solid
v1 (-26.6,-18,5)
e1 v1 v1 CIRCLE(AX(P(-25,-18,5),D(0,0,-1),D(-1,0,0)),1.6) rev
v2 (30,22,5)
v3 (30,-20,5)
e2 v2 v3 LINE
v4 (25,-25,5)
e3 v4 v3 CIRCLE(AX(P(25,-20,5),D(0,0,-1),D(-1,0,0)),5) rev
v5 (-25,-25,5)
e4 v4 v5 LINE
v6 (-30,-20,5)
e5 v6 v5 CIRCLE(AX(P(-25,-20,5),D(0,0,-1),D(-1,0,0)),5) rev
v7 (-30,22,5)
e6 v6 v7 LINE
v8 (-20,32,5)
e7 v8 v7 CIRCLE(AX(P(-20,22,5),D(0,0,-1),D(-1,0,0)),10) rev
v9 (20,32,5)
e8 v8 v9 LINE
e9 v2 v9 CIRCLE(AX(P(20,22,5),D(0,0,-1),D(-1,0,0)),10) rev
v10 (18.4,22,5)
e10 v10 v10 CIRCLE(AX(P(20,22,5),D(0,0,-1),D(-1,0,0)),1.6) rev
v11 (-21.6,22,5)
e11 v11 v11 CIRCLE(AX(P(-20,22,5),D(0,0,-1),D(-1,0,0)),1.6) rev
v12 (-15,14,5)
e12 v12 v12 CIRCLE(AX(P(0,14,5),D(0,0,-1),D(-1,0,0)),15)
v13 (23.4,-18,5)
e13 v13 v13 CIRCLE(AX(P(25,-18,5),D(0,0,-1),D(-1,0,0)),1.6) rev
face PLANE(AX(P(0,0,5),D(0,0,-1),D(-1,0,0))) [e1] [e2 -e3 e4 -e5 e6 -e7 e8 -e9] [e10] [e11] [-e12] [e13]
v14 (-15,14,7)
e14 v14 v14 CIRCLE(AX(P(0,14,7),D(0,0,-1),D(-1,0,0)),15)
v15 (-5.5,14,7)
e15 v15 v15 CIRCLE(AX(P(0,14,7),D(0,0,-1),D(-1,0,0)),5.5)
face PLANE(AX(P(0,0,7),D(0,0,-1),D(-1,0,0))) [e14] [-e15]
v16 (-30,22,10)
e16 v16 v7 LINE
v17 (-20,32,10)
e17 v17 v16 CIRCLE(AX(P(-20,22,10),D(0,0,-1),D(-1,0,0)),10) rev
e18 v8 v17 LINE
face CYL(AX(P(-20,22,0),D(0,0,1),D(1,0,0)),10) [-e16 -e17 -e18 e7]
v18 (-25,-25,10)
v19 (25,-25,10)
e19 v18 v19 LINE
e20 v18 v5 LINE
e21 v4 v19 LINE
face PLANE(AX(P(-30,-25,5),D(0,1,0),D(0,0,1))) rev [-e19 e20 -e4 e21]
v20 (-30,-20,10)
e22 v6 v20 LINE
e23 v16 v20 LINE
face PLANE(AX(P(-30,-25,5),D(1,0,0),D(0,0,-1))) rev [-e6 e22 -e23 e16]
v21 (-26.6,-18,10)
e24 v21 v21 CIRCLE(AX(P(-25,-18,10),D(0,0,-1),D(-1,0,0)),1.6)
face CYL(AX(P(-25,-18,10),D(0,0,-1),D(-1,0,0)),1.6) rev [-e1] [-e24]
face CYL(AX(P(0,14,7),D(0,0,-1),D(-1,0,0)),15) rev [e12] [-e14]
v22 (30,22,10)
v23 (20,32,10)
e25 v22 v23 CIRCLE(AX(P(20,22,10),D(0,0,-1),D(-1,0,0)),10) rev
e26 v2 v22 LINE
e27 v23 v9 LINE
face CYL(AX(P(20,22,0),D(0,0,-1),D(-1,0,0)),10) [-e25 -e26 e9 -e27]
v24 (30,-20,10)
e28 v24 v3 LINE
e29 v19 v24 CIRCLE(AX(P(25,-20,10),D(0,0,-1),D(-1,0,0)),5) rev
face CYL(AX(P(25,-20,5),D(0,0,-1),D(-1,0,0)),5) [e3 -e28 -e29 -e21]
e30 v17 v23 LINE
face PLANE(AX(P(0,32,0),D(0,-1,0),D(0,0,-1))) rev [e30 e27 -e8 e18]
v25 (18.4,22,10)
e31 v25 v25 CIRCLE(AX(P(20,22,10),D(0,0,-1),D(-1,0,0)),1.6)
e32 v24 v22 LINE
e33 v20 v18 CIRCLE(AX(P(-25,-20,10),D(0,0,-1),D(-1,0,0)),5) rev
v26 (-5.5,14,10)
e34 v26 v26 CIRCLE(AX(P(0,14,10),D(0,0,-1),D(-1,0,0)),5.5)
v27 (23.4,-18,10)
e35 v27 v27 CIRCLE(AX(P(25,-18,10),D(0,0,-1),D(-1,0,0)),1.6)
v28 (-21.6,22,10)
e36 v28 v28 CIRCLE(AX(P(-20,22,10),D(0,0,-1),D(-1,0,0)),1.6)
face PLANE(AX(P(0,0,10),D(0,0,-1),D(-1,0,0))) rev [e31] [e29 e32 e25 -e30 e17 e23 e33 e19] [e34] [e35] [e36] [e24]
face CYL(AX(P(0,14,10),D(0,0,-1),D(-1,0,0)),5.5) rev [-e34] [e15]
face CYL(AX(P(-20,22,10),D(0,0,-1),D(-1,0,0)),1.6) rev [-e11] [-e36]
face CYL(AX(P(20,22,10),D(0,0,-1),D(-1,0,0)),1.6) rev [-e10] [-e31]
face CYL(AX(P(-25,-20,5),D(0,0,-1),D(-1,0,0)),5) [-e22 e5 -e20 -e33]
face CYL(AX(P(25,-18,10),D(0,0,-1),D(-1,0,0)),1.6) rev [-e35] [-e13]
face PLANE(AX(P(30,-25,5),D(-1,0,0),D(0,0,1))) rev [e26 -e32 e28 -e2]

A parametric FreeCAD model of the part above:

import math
import FreeCAD as App
import Part
import Sketcher
from FreeCAD import Vector


def edges_at(feature, points):
    """Names of the edges that pass closest to the given points."""
    edges = feature.Shape.Edges
    near = lambda p: min(range(len(edges)), key=lambda i: edges[i].distToShape(Part.Vertex(*p))[0])
    return sorted({f"Edge{near(p) + 1}" for p in points})

doc = App.newDocument("Part")
params = doc.addObject("Spreadsheet::Sheet", "Params")
for row, (alias, value) in enumerate([
    ("sketch1_diameter", "30 mm"),
    ("sketch1_width", "60 mm"),
    ("sketch1_height", "50 mm"),
    ("pad1_length", "5 mm"),
    ("sketch2_diameter", "11 mm"),
    ("sketch2_width", "60 mm"),
    ("sketch2_height", "50 mm"),
    ("pad2_length", "5 mm"),
    ("sketch3_diameter", "3.2 mm"),
    ("pocket1_length", "10 mm"),
    ("sketch4_width", "60 mm"),
    ("sketch4_height", "10 mm"),
    ("pad3_length", "7 mm"),
    ("fillet_radius", "10 mm"),
    ("fillet2_radius", "10 mm"),
    ("fillet3_radius", "5 mm"),
    ("fillet4_radius", "5 mm"),
    ("pocket2_length", "5 mm"),
    ("sketch6_diameter", "30 mm"),
    ("pocket3_length", "2 mm"),
    ("sketch7_radius", "15 mm"),
    ("sketch7_height", "14 mm"),
    ("pocket4_length", "2 mm"),
    ("sketch8_diameter", "11 mm"),
    ("sketch9_diameter", "11 mm"),
    ("pad4_length", "3 mm"),
    ("sketch10_radius", "15 mm"),
    ("sketch10_height", "14 mm"),
    ("pad5_length", "2 mm"),
], start=1):
    params.set(f"A{row}", alias)
    params.set(f"B{row}", "=" + value)
    params.setAlias(f"B{row}", alias)

body = doc.addObject("PartDesign::Body", "Body")

sketch1 = body.newObject("Sketcher::SketchObject", "Sketch")
sketch1.AttachmentSupport = (doc.getObject("XY_Plane"), [""])
sketch1.MapMode = "FlatFace"
sketch1.addGeometry(Part.LineSegment(Vector(-30, 25, 0), Vector(-30, -25, 0)), False)
sketch1.addGeometry(Part.LineSegment(Vector(-30, -25, 0), Vector(30, -25, 0)), False)
sketch1.addGeometry(Part.LineSegment(Vector(30, -25, 0), Vector(30, 25, 0)), False)
sketch1.addGeometry(Part.LineSegment(Vector(30, 25, 0), Vector(-30, 25, 0)), False)
sketch1.addGeometry(Part.Circle(Vector(0, 0, 0), Vector(0, 0, 1), 15), False)
sketch1.addConstraint(Sketcher.Constraint("Coincident", 0, 2, 1, 1))
sketch1.addConstraint(Sketcher.Constraint("Coincident", 1, 2, 2, 1))
sketch1.addConstraint(Sketcher.Constraint("Coincident", 2, 2, 3, 1))
sketch1.addConstraint(Sketcher.Constraint("Coincident", 3, 2, 0, 1))
sketch1.addConstraint(Sketcher.Constraint("Vertical", 0))
sketch1.addConstraint(Sketcher.Constraint("Horizontal", 1))
sketch1.addConstraint(Sketcher.Constraint("Vertical", 2))
sketch1.addConstraint(Sketcher.Constraint("Horizontal", 3))
sketch1.addConstraint(Sketcher.Constraint("Coincident", 4, 3, -1, 1))
sketch1.addConstraint(Sketcher.Constraint("Symmetric", 0, 2, 2, 2, -1, 1))
sketch1.addConstraint(Sketcher.Constraint("Diameter", 4, 30.0))
sketch1.addConstraint(Sketcher.Constraint("DistanceX", 1, 1, 1, 2, 60.0))
sketch1.addConstraint(Sketcher.Constraint("DistanceY", 0, 2, 0, 1, 50.0))
sketch1.setExpression("Constraints[10]", "Params.sketch1_diameter")
sketch1.setExpression("Constraints[11]", "Params.sketch1_width")
sketch1.setExpression("Constraints[12]", "Params.sketch1_height")
pad1 = body.newObject("PartDesign::Pad", "Pad")
pad1.Profile = sketch1
pad1.setExpression("Length", "Params.pad1_length")

sketch2 = body.newObject("Sketcher::SketchObject", "Sketch001")
sketch2.AttachmentSupport = (doc.getObject("XY_Plane"), [""])
sketch2.MapMode = "FlatFace"
sketch2.AttachmentOffset = App.Placement(Vector(0, 0, 5), App.Rotation())
sketch2.addGeometry(Part.LineSegment(Vector(-30, 25, 0), Vector(-30, -25, 0)), False)
sketch2.addGeometry(Part.LineSegment(Vector(-30, -25, 0), Vector(30, -25, 0)), False)
sketch2.addGeometry(Part.LineSegment(Vector(30, -25, 0), Vector(30, 25, 0)), False)
sketch2.addGeometry(Part.LineSegment(Vector(30, 25, 0), Vector(-30, 25, 0)), False)
sketch2.addGeometry(Part.Circle(Vector(0, 0, 0), Vector(0, 0, 1), 6), False)
sketch2.addConstraint(Sketcher.Constraint("Coincident", 0, 2, 1, 1))
sketch2.addConstraint(Sketcher.Constraint("Coincident", 1, 2, 2, 1))
sketch2.addConstraint(Sketcher.Constraint("Coincident", 2, 2, 3, 1))
sketch2.addConstraint(Sketcher.Constraint("Coincident", 3, 2, 0, 1))
sketch2.addConstraint(Sketcher.Constraint("Vertical", 0))
sketch2.addConstraint(Sketcher.Constraint("Horizontal", 1))
sketch2.addConstraint(Sketcher.Constraint("Vertical", 2))
sketch2.addConstraint(Sketcher.Constraint("Horizontal", 3))
sketch2.addConstraint(Sketcher.Constraint("Coincident", 4, 3, -1, 1))
sketch2.addConstraint(Sketcher.Constraint("Symmetric", 0, 2, 2, 2, -1, 1))
sketch2.addConstraint(Sketcher.Constraint("Diameter", 4, 11.0))
sketch2.addConstraint(Sketcher.Constraint("DistanceX", 1, 1, 1, 2, 60.0))
sketch2.addConstraint(Sketcher.Constraint("DistanceY", 0, 2, 0, 1, 50.0))
sketch2.setExpression("Constraints[10]", "Params.sketch2_diameter")
sketch2.setExpression("Constraints[11]", "Params.sketch2_width")
sketch2.setExpression("Constraints[12]", "Params.sketch2_height")
pad2 = body.newObject("PartDesign::Pad", "Pad001")
pad2.Profile = sketch2
pad2.setExpression("Length", "Params.pad2_length")

sketch3 = body.newObject("Sketcher::SketchObject", "Sketch002")
sketch3.AttachmentSupport = (doc.getObject("XY_Plane"), [""])
sketch3.MapMode = "FlatFace"
sketch3.addGeometry(Part.Circle(Vector(20, 22, 0), Vector(0, 0, 1), 1.6), False)
sketch3.addGeometry(Part.Circle(Vector(25, -18, 0), Vector(0, 0, 1), 1.6), False)
sketch3.addGeometry(Part.Circle(Vector(-20, 22, 0), Vector(0, 0, 1), 1.6), False)
sketch3.addGeometry(Part.Circle(Vector(-25, -18, 0), Vector(0, 0, 1), 1.6), False)
sketch3.addConstraint(Sketcher.Constraint("Equal", 0, 1))
sketch3.addConstraint(Sketcher.Constraint("Equal", 1, 2))
sketch3.addConstraint(Sketcher.Constraint("Equal", 2, 3))
sketch3.addConstraint(Sketcher.Constraint("Symmetric", 0, 3, 2, 3, -2))
sketch3.addConstraint(Sketcher.Constraint("Symmetric", 1, 3, 3, 3, -2))
sketch3.addConstraint(Sketcher.Constraint("Diameter", 0, 3.2))
sketch3.addConstraint(Sketcher.Constraint("DistanceX", -1, 1, 0, 3, 20.0))
sketch3.addConstraint(Sketcher.Constraint("DistanceY", -1, 1, 0, 3, 22.0))
sketch3.addConstraint(Sketcher.Constraint("DistanceX", -1, 1, 1, 3, 25.0))
sketch3.addConstraint(Sketcher.Constraint("DistanceY", 1, 3, -1, 1, 18.0))
sketch3.setExpression("Constraints[5]", "Params.sketch3_diameter")
pocket1 = body.newObject("PartDesign::Pocket", "Pocket")
pocket1.Profile = sketch3
pocket1.setExpression("Length", "Params.pocket1_length")
pocket1.Reversed = True

sketch4 = body.newObject("Sketcher::SketchObject", "Sketch003")
sketch4.AttachmentSupport = (doc.getObject("XZ_Plane"), [""])
sketch4.MapMode = "FlatFace"
sketch4.AttachmentOffset = App.Placement(Vector(0, 0, -25), App.Rotation())
sketch4.addGeometry(Part.LineSegment(Vector(-30, 0, 0), Vector(-30, 10, 0)), False)
sketch4.addGeometry(Part.LineSegment(Vector(-30, 10, 0), Vector(30, 10, 0)), False)
sketch4.addGeometry(Part.LineSegment(Vector(30, 10, 0), Vector(30, 0, 0)), False)
sketch4.addGeometry(Part.LineSegment(Vector(30, 0, 0), Vector(-30, 0, 0)), False)
sketch4.addConstraint(Sketcher.Constraint("Coincident", 0, 2, 1, 1))
sketch4.addConstraint(Sketcher.Constraint("Coincident", 1, 2, 2, 1))
sketch4.addConstraint(Sketcher.Constraint("Coincident", 2, 2, 3, 1))
sketch4.addConstraint(Sketcher.Constraint("Coincident", 3, 2, 0, 1))
sketch4.addConstraint(Sketcher.Constraint("Vertical", 0))
sketch4.addConstraint(Sketcher.Constraint("Horizontal", 1))
sketch4.addConstraint(Sketcher.Constraint("Vertical", 2))
sketch4.addConstraint(Sketcher.Constraint("Horizontal", 3))
sketch4.addConstraint(Sketcher.Constraint("Symmetric", 2, 2, 3, 2, -1, 1))
sketch4.addConstraint(Sketcher.Constraint("DistanceX", 1, 1, 1, 2, 60.0))
sketch4.addConstraint(Sketcher.Constraint("DistanceY", 0, 1, 0, 2, 10.0))
sketch4.setExpression("Constraints[9]", "Params.sketch4_width")
sketch4.setExpression("Constraints[10]", "Params.sketch4_height")
pad3 = body.newObject("PartDesign::Pad", "Pad002")
pad3.Profile = sketch4
pad3.setExpression("Length", "Params.pad3_length")
pad3.Reversed = True
doc.recompute()

fillet = body.newObject("PartDesign::Fillet", "Fillet")
fillet.Base = (pad3, edges_at(pad3, [(-30, 32, 5)]))
fillet.setExpression("Radius", "Params.fillet_radius")
doc.recompute()

fillet2 = body.newObject("PartDesign::Fillet", "Fillet001")
fillet2.Base = (fillet, edges_at(fillet, [(30, 32, 5)]))
fillet2.setExpression("Radius", "Params.fillet2_radius")
doc.recompute()

fillet3 = body.newObject("PartDesign::Fillet", "Fillet002")
fillet3.Base = (fillet2, edges_at(fillet2, [(-30, -25, 5)]))
fillet3.setExpression("Radius", "Params.fillet3_radius")
doc.recompute()

fillet4 = body.newObject("PartDesign::Fillet", "Fillet003")
fillet4.Base = (fillet3, edges_at(fillet3, [(30, -25, 5)]))
fillet4.setExpression("Radius", "Params.fillet4_radius")

sketch5 = body.newObject("Sketcher::SketchObject", "Sketch004")
sketch5.AttachmentSupport = (doc.getObject("XY_Plane"), [""])
sketch5.MapMode = "FlatFace"
sketch5.addGeometry(Part.LineSegment(Vector(31, 32, 0), Vector(31, -27, 0)), False)
sketch5.addGeometry(Part.LineSegment(Vector(31, -27, 0), Vector(-32, -27, 0)), False)
sketch5.addGeometry(Part.LineSegment(Vector(-32, -27, 0), Vector(-32, 32, 0)), False)
sketch5.addGeometry(Part.LineSegment(Vector(-32, 32, 0), Vector(31, 32, 0)), False)
sketch5.addConstraint(Sketcher.Constraint("Coincident", 0, 2, 1, 1))
sketch5.addConstraint(Sketcher.Constraint("Coincident", 1, 2, 2, 1))
sketch5.addConstraint(Sketcher.Constraint("Coincident", 2, 2, 3, 1))
sketch5.addConstraint(Sketcher.Constraint("Coincident", 3, 2, 0, 1))
sketch5.addConstraint(Sketcher.Constraint("Vertical", 0))
sketch5.addConstraint(Sketcher.Constraint("Horizontal", 1))
sketch5.addConstraint(Sketcher.Constraint("Vertical", 2))
sketch5.addConstraint(Sketcher.Constraint("Horizontal", 3))
sketch5.addConstraint(Sketcher.Constraint("DistanceX", 1, 2, 1, 1, 62.929868))
sketch5.addConstraint(Sketcher.Constraint("DistanceY", 0, 2, 0, 1, 59.603652))
sketch5.addConstraint(Sketcher.Constraint("DistanceX", -1, 1, 0, 2, 30.767502))
sketch5.addConstraint(Sketcher.Constraint("DistanceY", 0, 2, -1, 1, 27.294326))
pocket2 = body.newObject("PartDesign::Pocket", "Pocket001")
pocket2.Profile = sketch5
pocket2.setExpression("Length", "Params.pocket2_length")
pocket2.Reversed = True

sketch6 = body.newObject("Sketcher::SketchObject", "Sketch005")
sketch6.AttachmentSupport = (doc.getObject("XY_Plane"), [""])
sketch6.MapMode = "FlatFace"
sketch6.AttachmentOffset = App.Placement(Vector(0, 0, 5), App.Rotation())
sketch6.addGeometry(Part.Circle(Vector(0, 0, 0), Vector(0, 0, 1), 15), False)
sketch6.addConstraint(Sketcher.Constraint("Coincident", 0, 3, -1, 1))
sketch6.addConstraint(Sketcher.Constraint("Diameter", 0, 30.0))
sketch6.setExpression("Constraints[1]", "Params.sketch6_diameter")
pocket3 = body.newObject("PartDesign::Pocket", "Pocket002")
pocket3.Profile = sketch6
pocket3.setExpression("Length", "Params.pocket3_length")
pocket3.Reversed = True

sketch7 = body.newObject("Sketcher::SketchObject", "Sketch006")
sketch7.AttachmentSupport = (doc.getObject("XY_Plane"), [""])
sketch7.MapMode = "FlatFace"
sketch7.AttachmentOffset = App.Placement(Vector(0, 0, 5), App.Rotation())
sketch7.addGeometry(Part.ArcOfCircle(Part.Circle(Vector(0, 14, 0), Vector(0, 0, 1), 15), math.radians(0), math.radians(180)), False)
sketch7.addGeometry(Part.LineSegment(Vector(15, 14, 0), Vector(15, 0, 0)), False)
sketch7.addGeometry(Part.ArcOfCircle(Part.Circle(Vector(0, 0, 0), Vector(0, 0, 1), 15), math.radians(180), math.radians(360)), False)
sketch7.addGeometry(Part.LineSegment(Vector(-15, 0, 0), Vector(-15, 14, 0)), False)
sketch7.addConstraint(Sketcher.Constraint("Tangent", 0, 1, 1, 1))
sketch7.addConstraint(Sketcher.Constraint("Tangent", 1, 2, 2, 2))
sketch7.addConstraint(Sketcher.Constraint("Tangent", 2, 1, 3, 1))
sketch7.addConstraint(Sketcher.Constraint("Tangent", 3, 2, 0, 2))
sketch7.addConstraint(Sketcher.Constraint("Vertical", 1))
sketch7.addConstraint(Sketcher.Constraint("Vertical", 3))
sketch7.addConstraint(Sketcher.Constraint("Coincident", 2, 3, -1, 1))
sketch7.addConstraint(Sketcher.Constraint("Radius", 0, 15.0))
sketch7.addConstraint(Sketcher.Constraint("DistanceY", 1, 2, 1, 1, 14.0))
sketch7.setExpression("Constraints[7]", "Params.sketch7_radius")
sketch7.setExpression("Constraints[8]", "Params.sketch7_height")
pocket4 = body.newObject("PartDesign::Pocket", "Pocket003")
pocket4.Profile = sketch7
pocket4.setExpression("Length", "Params.pocket4_length")
pocket4.Reversed = True

sketch8 = body.newObject("Sketcher::SketchObject", "Sketch007")
sketch8.AttachmentSupport = (doc.getObject("XY_Plane"), [""])
sketch8.MapMode = "FlatFace"
sketch8.AttachmentOffset = App.Placement(Vector(0, 0, 7), App.Rotation())
sketch8.addGeometry(Part.Circle(Vector(0, 14, 0), Vector(0, 0, 1), 6), False)
sketch8.addConstraint(Sketcher.Constraint("PointOnObject", 0, 3, -2))
sketch8.addConstraint(Sketcher.Constraint("Diameter", 0, 11.0))
sketch8.addConstraint(Sketcher.Constraint("DistanceY", -1, 1, 0, 3, 14.0))
sketch8.setExpression("Constraints[1]", "Params.sketch8_diameter")
pocket5 = body.newObject("PartDesign::Pocket", "Pocket004")
pocket5.Profile = sketch8
pocket5.Type = "ThroughAll"
pocket5.Reversed = True

sketch9 = body.newObject("Sketcher::SketchObject", "Sketch008")
sketch9.AttachmentSupport = (doc.getObject("XY_Plane"), [""])
sketch9.MapMode = "FlatFace"
sketch9.AttachmentOffset = App.Placement(Vector(0, 0, 7), App.Rotation())
sketch9.addGeometry(Part.Circle(Vector(0, 0, 0), Vector(0, 0, 1), 6), False)
sketch9.addConstraint(Sketcher.Constraint("Coincident", 0, 3, -1, 1))
sketch9.addConstraint(Sketcher.Constraint("Diameter", 0, 11.0))
sketch9.setExpression("Constraints[1]", "Params.sketch9_diameter")
pad4 = body.newObject("PartDesign::Pad", "Pad003")
pad4.Profile = sketch9
pad4.setExpression("Length", "Params.pad4_length")

sketch10 = body.newObject("Sketcher::SketchObject", "Sketch009")
sketch10.AttachmentSupport = (doc.getObject("XY_Plane"), [""])
sketch10.MapMode = "FlatFace"
sketch10.AttachmentOffset = App.Placement(Vector(0, 0, 5), App.Rotation())
sketch10.addGeometry(Part.ArcOfCircle(Part.Circle(Vector(0, 0, 0), Vector(0, 0, 1), 15), math.radians(180), math.radians(360)), False)
sketch10.addGeometry(Part.LineSegment(Vector(-15, 0, 0), Vector(-15, 14, 0)), False)
sketch10.addGeometry(Part.ArcOfCircle(Part.Circle(Vector(0, 14, 0), Vector(0, 0, 1), 15), math.radians(-180), math.radians(-152)), False)
sketch10.addGeometry(Part.ArcOfCircle(Part.Circle(Vector(0, 14, 0), Vector(0, 0, 1), 15), math.radians(-152), math.radians(-28)), False)
sketch10.addGeometry(Part.ArcOfCircle(Part.Circle(Vector(0, 14, 0), Vector(0, 0, 1), 15), math.radians(-28), math.radians(0)), False)
sketch10.addGeometry(Part.LineSegment(Vector(15, 14, 0), Vector(15, 0, 0)), False)
sketch10.addConstraint(Sketcher.Constraint("Tangent", 0, 1, 1, 1))
sketch10.addConstraint(Sketcher.Constraint("Tangent", 1, 2, 2, 1))
sketch10.addConstraint(Sketcher.Constraint("Tangent", 2, 2, 3, 1))
sketch10.addConstraint(Sketcher.Constraint("Tangent", 3, 2, 4, 1))
sketch10.addConstraint(Sketcher.Constraint("Tangent", 4, 2, 5, 1))
sketch10.addConstraint(Sketcher.Constraint("Tangent", 5, 2, 0, 2))
sketch10.addConstraint(Sketcher.Constraint("Vertical", 1))
sketch10.addConstraint(Sketcher.Constraint("Vertical", 5))
sketch10.addConstraint(Sketcher.Constraint("Coincident", 0, 3, -1, 1))
sketch10.addConstraint(Sketcher.Constraint("Coincident", 4, 3, 2, 3))
sketch10.addConstraint(Sketcher.Constraint("Horizontal", 2, 2, 3, 2))
sketch10.addConstraint(Sketcher.Constraint("Radius", 0, 15.0))
sketch10.addConstraint(Sketcher.Constraint("DistanceY", 1, 1, 1, 2, 14.0))
sketch10.addConstraint(Sketcher.Constraint("DistanceY", -1, 1, 2, 2, 7.0))
sketch10.setExpression("Constraints[11]", "Params.sketch10_radius")
sketch10.setExpression("Constraints[12]", "Params.sketch10_height")
pad5 = body.newObject("PartDesign::Pad", "Pad004")
pad5.Profile = sketch10
pad5.setExpression("Length", "Params.pad5_length")

doc.recompute()
